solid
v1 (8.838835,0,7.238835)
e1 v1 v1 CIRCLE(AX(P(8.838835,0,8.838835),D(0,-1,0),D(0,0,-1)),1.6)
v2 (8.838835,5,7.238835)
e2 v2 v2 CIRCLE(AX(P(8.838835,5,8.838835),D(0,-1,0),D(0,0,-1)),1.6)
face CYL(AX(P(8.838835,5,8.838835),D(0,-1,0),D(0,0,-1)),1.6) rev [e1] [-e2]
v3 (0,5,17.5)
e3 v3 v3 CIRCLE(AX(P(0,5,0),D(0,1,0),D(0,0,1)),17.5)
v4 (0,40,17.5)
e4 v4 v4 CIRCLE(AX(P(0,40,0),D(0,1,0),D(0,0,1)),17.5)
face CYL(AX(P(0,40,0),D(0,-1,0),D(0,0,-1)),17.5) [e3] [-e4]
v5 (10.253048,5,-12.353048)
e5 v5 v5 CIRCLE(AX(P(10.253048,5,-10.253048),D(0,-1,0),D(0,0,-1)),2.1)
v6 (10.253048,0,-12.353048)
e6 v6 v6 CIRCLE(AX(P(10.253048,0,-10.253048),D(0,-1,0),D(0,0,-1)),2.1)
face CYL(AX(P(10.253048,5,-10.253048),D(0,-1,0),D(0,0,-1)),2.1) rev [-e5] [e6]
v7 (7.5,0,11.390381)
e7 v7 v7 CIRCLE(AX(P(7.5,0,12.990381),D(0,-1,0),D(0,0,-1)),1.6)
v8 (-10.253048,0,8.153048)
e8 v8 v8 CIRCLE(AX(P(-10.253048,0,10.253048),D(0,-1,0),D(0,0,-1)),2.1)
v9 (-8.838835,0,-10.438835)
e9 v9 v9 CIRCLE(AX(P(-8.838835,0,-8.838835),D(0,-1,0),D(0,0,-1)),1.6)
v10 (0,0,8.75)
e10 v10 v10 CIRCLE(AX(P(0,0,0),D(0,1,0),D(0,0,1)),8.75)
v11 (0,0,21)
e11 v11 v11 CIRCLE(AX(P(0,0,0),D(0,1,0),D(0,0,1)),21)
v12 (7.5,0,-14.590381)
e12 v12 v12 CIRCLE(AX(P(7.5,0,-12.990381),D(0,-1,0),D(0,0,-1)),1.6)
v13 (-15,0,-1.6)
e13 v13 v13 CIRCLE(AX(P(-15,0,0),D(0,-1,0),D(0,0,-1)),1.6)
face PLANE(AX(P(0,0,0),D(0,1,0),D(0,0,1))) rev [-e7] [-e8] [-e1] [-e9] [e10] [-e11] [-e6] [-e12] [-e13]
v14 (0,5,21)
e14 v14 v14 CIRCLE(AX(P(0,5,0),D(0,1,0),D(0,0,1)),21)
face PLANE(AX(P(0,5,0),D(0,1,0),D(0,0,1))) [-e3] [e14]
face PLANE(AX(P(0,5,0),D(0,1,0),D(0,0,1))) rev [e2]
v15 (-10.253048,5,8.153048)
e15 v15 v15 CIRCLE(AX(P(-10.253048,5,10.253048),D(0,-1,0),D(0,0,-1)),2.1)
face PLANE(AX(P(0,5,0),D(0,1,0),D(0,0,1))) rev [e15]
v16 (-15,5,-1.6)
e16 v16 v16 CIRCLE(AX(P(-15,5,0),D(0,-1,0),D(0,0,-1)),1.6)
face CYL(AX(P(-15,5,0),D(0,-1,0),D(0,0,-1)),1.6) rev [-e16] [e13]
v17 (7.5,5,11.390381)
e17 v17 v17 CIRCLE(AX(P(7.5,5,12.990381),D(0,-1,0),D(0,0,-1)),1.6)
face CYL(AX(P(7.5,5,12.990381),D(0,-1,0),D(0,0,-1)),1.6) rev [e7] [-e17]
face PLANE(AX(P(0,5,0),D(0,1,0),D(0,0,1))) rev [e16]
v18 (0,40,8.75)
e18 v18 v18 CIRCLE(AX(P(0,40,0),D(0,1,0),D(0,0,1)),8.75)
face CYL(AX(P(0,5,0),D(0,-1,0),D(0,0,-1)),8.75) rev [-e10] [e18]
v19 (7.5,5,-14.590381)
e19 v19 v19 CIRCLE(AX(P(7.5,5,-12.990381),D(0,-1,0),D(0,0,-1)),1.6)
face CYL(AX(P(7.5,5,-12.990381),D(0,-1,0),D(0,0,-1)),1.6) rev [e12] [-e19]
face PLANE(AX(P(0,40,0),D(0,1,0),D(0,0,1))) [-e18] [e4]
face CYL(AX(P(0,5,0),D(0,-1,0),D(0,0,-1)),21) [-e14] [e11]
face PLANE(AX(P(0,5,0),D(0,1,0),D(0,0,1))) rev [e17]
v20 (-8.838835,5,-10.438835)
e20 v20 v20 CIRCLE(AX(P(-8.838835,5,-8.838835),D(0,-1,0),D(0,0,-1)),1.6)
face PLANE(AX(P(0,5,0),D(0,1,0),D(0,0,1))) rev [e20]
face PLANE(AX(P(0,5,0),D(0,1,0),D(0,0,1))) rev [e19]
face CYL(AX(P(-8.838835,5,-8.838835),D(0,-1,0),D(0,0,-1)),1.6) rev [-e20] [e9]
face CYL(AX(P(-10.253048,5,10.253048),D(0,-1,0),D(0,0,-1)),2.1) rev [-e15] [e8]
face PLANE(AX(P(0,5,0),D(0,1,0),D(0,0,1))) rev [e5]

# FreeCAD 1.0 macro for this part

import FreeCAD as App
import Part
import Sketcher

V = App.Vector
Q = App.Units.Quantity

doc = App.newDocument("Part")
body = doc.addObject("PartDesign::Body", "Body")

# Sketch on XZ plane
sketch1 = body.newObject("Sketcher::SketchObject", "Sketch")
sketch1.AttachmentSupport = (doc.getObject("XZ_Plane"), [""])
sketch1.MapMode = "FlatFace"
sketch1.addGeometry(Part.Circle(V(0, 0, 0), V(0, 0, 1), 21), False)
sketch1.addGeometry(Part.Circle(V(0, 0, 0), V(0, 0, 1), 8.75), False)
sketch1.addConstraint(Sketcher.Constraint("Coincident", 0, 3, -1, 1))
sketch1.addConstraint(Sketcher.Constraint("Coincident", 1, 3, -1, 1))
sketch1.addConstraint(Sketcher.Constraint("Diameter", 0, Q("42 mm")))
sketch1.addConstraint(Sketcher.Constraint("Diameter", 1, Q("17.5 mm")))
pad1 = body.newObject("PartDesign::Pad", "Pad")
pad1.Profile = sketch1
pad1.Length = 5
pad1.Reversed = True

# Sketch on XZ plane
sketch2 = body.newObject("Sketcher::SketchObject", "Sketch001")
sketch2.AttachmentSupport = (doc.getObject("XZ_Plane"), [""])
sketch2.MapMode = "FlatFace"
sketch2.addGeometry(Part.Circle(V(-10.253048, 10.253048, 0), V(0, 0, 1), 2.1), False)
sketch2.addGeometry(Part.Circle(V(10.253048, -10.253048, 0), V(0, 0, 1), 2.1), False)
sketch2.addGeometry(Part.Circle(V(-15, 0, 0), V(0, 0, 1), 1.6), False)
sketch2.addGeometry(Part.Circle(V(7.5, 12.990381, 0), V(0, 0, 1), 1.6), False)
sketch2.addGeometry(Part.Circle(V(7.5, -12.990381, 0), V(0, 0, 1), 1.6), False)
sketch2.addGeometry(Part.Circle(V(8.838835, 8.838835, 0), V(0, 0, 1), 1.6), False)
sketch2.addGeometry(Part.Circle(V(-8.838835, -8.838835, 0), V(0, 0, 1), 1.6), False)
sketch2.addConstraint(Sketcher.Constraint("Equal", 0, 1))
sketch2.addConstraint(Sketcher.Constraint("Equal", 2, 3))
sketch2.addConstraint(Sketcher.Constraint("Equal", 3, 4))
sketch2.addConstraint(Sketcher.Constraint("Equal", 4, 5))
sketch2.addConstraint(Sketcher.Constraint("Equal", 5, 6))
sketch2.addConstraint(Sketcher.Constraint("Symmetric", 0, 3, 1, 3, -1, 1))
sketch2.addConstraint(Sketcher.Constraint("Symmetric", 5, 3, 6, 3, -1, 1))
sketch2.addConstraint(Sketcher.Constraint("Symmetric", 3, 3, 4, 3, -1))
sketch2.addConstraint(Sketcher.Constraint("PointOnObject", 2, 3, -1))
sketch2.addConstraint(Sketcher.Constraint("Diameter", 0, Q("4.2 mm")))
sketch2.addConstraint(Sketcher.Constraint("Diameter", 2, Q("3.2 mm")))
sketch2.addConstraint(Sketcher.Constraint("DistanceX", 2, 3, -1, 1, Q("15 mm")))
sketch2.addConstraint(Sketcher.Constraint("DistanceX", -1, 1, 3, 3, Q("7.5 mm")))
sketch2.addConstraint(Sketcher.Constraint("DistanceX", 0, 3, -1, 1, Q("10.253048 mm")))
sketch2.addConstraint(Sketcher.Constraint("DistanceY", -1, 1, 0, 3, Q("10.253048 mm")))
sketch2.addConstraint(Sketcher.Constraint("DistanceY", -1, 1, 3, 3, Q("12.990381 mm")))
sketch2.addConstraint(Sketcher.Constraint("DistanceX", 6, 3, 5, 3, Q("17.67767 mm")))
sketch2.addConstraint(Sketcher.Constraint("DistanceY", 6, 3, 5, 3, Q("17.67767 mm")))
pocket1 = body.newObject("PartDesign::Pocket", "Pocket")
pocket1.Profile = sketch2
pocket1.Length = 5

# Sketch on XZ plane
sketch3 = body.newObject("Sketcher::SketchObject", "Sketch002")
sketch3.AttachmentSupport = (doc.getObject("XZ_Plane"), [""])
sketch3.MapMode = "FlatFace"
sketch3.AttachmentOffset = App.Placement(V(0, 0, -5), App.Rotation())
sketch3.addGeometry(Part.Circle(V(0, 0, 0), V(0, 0, 1), 17.5), False)
sketch3.addGeometry(Part.Circle(V(0, 0, 0), V(0, 0, 1), 8.75), False)
sketch3.addConstraint(Sketcher.Constraint("Coincident", 0, 3, -1, 1))
sketch3.addConstraint(Sketcher.Constraint("Coincident", 1, 3, -1, 1))
sketch3.addConstraint(Sketcher.Constraint("Diameter", 0, Q("35 mm")))
sketch3.addConstraint(Sketcher.Constraint("Diameter", 1, Q("17.5 mm")))
pad2 = body.newObject("PartDesign::Pad", "Pad001")
pad2.Profile = sketch3
pad2.Length = 35
pad2.Reversed = True

doc.recompute()
